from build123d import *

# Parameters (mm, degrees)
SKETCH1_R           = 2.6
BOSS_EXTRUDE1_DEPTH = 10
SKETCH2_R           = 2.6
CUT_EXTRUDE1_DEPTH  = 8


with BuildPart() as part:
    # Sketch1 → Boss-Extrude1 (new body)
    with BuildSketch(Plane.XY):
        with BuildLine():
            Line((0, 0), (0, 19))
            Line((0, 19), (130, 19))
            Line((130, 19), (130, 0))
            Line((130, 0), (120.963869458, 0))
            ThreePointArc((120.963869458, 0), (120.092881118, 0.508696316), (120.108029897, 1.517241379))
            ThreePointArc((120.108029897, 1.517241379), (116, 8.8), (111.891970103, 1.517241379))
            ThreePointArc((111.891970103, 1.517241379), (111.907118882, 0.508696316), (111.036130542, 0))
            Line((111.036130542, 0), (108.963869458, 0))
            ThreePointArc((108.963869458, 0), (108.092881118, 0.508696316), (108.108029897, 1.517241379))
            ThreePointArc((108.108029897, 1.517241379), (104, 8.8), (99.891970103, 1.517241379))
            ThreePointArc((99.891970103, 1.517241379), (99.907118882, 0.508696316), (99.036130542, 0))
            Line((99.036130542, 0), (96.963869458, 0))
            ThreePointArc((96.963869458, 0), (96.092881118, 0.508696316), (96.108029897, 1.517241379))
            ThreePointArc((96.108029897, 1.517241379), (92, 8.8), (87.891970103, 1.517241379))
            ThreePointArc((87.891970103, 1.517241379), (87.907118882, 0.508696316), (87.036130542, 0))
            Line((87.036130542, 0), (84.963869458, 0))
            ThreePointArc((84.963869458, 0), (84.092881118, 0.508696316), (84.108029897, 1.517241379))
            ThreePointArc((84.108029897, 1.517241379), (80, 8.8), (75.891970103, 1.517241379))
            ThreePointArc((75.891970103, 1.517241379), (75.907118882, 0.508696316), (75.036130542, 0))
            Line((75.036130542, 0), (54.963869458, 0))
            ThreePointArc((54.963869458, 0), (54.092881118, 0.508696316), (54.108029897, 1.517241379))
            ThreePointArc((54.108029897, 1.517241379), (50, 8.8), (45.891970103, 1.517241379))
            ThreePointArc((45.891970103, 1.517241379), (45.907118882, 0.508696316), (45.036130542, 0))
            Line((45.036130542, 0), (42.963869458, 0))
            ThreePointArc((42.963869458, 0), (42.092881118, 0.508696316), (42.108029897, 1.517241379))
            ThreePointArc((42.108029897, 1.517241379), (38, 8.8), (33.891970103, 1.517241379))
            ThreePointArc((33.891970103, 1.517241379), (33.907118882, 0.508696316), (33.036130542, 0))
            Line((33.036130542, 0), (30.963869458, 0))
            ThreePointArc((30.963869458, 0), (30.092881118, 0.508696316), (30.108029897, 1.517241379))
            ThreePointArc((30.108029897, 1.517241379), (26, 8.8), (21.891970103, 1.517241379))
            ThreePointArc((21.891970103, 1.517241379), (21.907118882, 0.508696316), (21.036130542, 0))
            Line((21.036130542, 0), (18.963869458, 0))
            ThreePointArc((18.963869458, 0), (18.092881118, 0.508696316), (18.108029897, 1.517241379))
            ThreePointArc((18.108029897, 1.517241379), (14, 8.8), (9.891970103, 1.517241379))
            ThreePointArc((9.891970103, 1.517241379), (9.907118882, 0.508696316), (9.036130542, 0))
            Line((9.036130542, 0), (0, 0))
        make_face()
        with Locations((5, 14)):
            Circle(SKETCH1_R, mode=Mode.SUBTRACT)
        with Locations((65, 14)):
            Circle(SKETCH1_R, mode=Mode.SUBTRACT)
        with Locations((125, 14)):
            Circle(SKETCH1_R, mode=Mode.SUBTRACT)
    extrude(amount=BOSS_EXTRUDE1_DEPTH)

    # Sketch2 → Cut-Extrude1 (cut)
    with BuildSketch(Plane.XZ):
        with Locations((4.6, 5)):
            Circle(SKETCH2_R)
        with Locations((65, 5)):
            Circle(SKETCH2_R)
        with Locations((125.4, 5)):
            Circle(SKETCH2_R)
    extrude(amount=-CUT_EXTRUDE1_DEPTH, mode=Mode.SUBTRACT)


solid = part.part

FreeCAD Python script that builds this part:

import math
import FreeCAD as App
import Part
import Sketcher

V = App.Vector

doc = App.newDocument("Part")
body = doc.addObject("PartDesign::Body", "Body")

# Sketch on XY plane
sketch1 = body.newObject("Sketcher::SketchObject", "Sketch")
sketch1.AttachmentSupport = (doc.getObject("XY_Plane"), [""])
sketch1.MapMode = "FlatFace"
sketch1.addGeometry(Part.LineSegment(V(0, 19, 0), V(0, 0, 0)), False)
sketch1.addGeometry(Part.LineSegment(V(0, 0, 0), V(9, 0, 0)), False)
sketch1.addGeometry(Part.ArcOfCircle(Part.Circle(V(9, 1, 0), V(0, 0, 1), 1), math.radians(-90), math.radians(31)), False)
sketch1.addGeometry(Part.ArcOfCircle(Part.Circle(V(14, 4, 0), V(0, 0, 1), 4.8), math.radians(-31), math.radians(211)), False)
sketch1.addGeometry(Part.ArcOfCircle(Part.Circle(V(19, 1, 0), V(0, 0, 1), 1), math.radians(149), math.radians(270)), False)
sketch1.addGeometry(Part.LineSegment(V(19, 0, 0), V(21, 0, 0)), False)
sketch1.addGeometry(Part.ArcOfCircle(Part.Circle(V(21, 1, 0), V(0, 0, 1), 1), math.radians(-90), math.radians(31)), False)
sketch1.addGeometry(Part.ArcOfCircle(Part.Circle(V(26, 4, 0), V(0, 0, 1), 4.8), math.radians(-31), math.radians(211)), False)
sketch1.addGeometry(Part.ArcOfCircle(Part.Circle(V(31, 1, 0), V(0, 0, 1), 1), math.radians(149), math.radians(270)), False)
sketch1.addGeometry(Part.LineSegment(V(31, 0, 0), V(33, 0, 0)), False)
sketch1.addGeometry(Part.ArcOfCircle(Part.Circle(V(33, 1, 0), V(0, 0, 1), 1), math.radians(-90), math.radians(31)), False)
sketch1.addGeometry(Part.ArcOfCircle(Part.Circle(V(38, 4, 0), V(0, 0, 1), 4.8), math.radians(-31), math.radians(211)), False)
sketch1.addGeometry(Part.ArcOfCircle(Part.Circle(V(43, 1, 0), V(0, 0, 1), 1), math.radians(149), math.radians(270)), False)
sketch1.addGeometry(Part.LineSegment(V(43, 0, 0), V(45, 0, 0)), False)
sketch1.addGeometry(Part.ArcOfCircle(Part.Circle(V(45, 1, 0), V(0, 0, 1), 1), math.radians(-90), math.radians(31)), False)
sketch1.addGeometry(Part.ArcOfCircle(Part.Circle(V(50, 4, 0), V(0, 0, 1), 4.8), math.radians(-31), math.radians(211)), False)
sketch1.addGeometry(Part.ArcOfCircle(Part.Circle(V(55, 1, 0), V(0, 0, 1), 1), math.radians(149), math.radians(270)), False)
sketch1.addGeometry(Part.LineSegment(V(55, 0, 0), V(75, 0, 0)), False)
sketch1.addGeometry(Part.ArcOfCircle(Part.Circle(V(75, 1, 0), V(0, 0, 1), 1), math.radians(-90), math.radians(31)), False)
sketch1.addGeometry(Part.ArcOfCircle(Part.Circle(V(80, 4, 0), V(0, 0, 1), 4.8), math.radians(-31), math.radians(211)), False)
sketch1.addGeometry(Part.ArcOfCircle(Part.Circle(V(85, 1, 0), V(0, 0, 1), 1), math.radians(149), math.radians(270)), False)
sketch1.addGeometry(Part.LineSegment(V(85, 0, 0), V(87, 0, 0)), False)
sketch1.addGeometry(Part.ArcOfCircle(Part.Circle(V(87, 1, 0), V(0, 0, 1), 1), math.radians(-90), math.radians(31)), False)
sketch1.addGeometry(Part.ArcOfCircle(Part.Circle(V(92, 4, 0), V(0, 0, 1), 4.8), math.radians(-31), math.radians(211)), False)
sketch1.addGeometry(Part.ArcOfCircle(Part.Circle(V(97, 1, 0), V(0, 0, 1), 1), math.radians(149), math.radians(270)), False)
sketch1.addGeometry(Part.LineSegment(V(97, 0, 0), V(99, 0, 0)), False)
sketch1.addGeometry(Part.ArcOfCircle(Part.Circle(V(99, 1, 0), V(0, 0, 1), 1), math.radians(-90), math.radians(31)), False)
sketch1.addGeometry(Part.ArcOfCircle(Part.Circle(V(104, 4, 0), V(0, 0, 1), 4.8), math.radians(-31), math.radians(211)), False)
sketch1.addGeometry(Part.ArcOfCircle(Part.Circle(V(109, 1, 0), V(0, 0, 1), 1), math.radians(149), math.radians(270)), False)
sketch1.addGeometry(Part.LineSegment(V(109, 0, 0), V(111, 0, 0)), False)
sketch1.addGeometry(Part.ArcOfCircle(Part.Circle(V(111, 1, 0), V(0, 0, 1), 1), math.radians(-90), math.radians(31)), False)
sketch1.addGeometry(Part.ArcOfCircle(Part.Circle(V(116, 4, 0), V(0, 0, 1), 4.8), math.radians(-31), math.radians(211)), False)
sketch1.addGeometry(Part.ArcOfCircle(Part.Circle(V(121, 1, 0), V(0, 0, 1), 1), math.radians(149), math.radians(270)), False)
sketch1.addGeometry(Part.LineSegment(V(121, 0, 0), V(130, 0, 0)), False)
sketch1.addGeometry(Part.LineSegment(V(130, 0, 0), V(130, 19, 0)), False)
sketch1.addGeometry(Part.LineSegment(V(130, 19, 0), V(0, 19, 0)), False)
sketch1.addGeometry(Part.Circle(V(125, 14, 0), V(0, 0, 1), 2.6), False)
sketch1.addGeometry(Part.Circle(V(65, 14, 0), V(0, 0, 1), 2.6), False)
sketch1.addGeometry(Part.Circle(V(5, 14, 0), V(0, 0, 1), 2.6), False)
sketch1.addConstraint(Sketcher.Constraint("Coincident", 0, 2, 1, 1))
sketch1.addConstraint(Sketcher.Constraint("Tangent", 1, 2, 2, 1))
sketch1.addConstraint(Sketcher.Constraint("Tangent", 2, 2, 3, 2))
sketch1.addConstraint(Sketcher.Constraint("Tangent", 3, 1, 4, 1))
sketch1.addConstraint(Sketcher.Constraint("Tangent", 4, 2, 5, 1))
sketch1.addConstraint(Sketcher.Constraint("Tangent", 5, 2, 6, 1))
sketch1.addConstraint(Sketcher.Constraint("Tangent", 6, 2, 7, 2))
sketch1.addConstraint(Sketcher.Constraint("Tangent", 7, 1, 8, 1))
sketch1.addConstraint(Sketcher.Constraint("Tangent", 8, 2, 9, 1))
sketch1.addConstraint(Sketcher.Constraint("Tangent", 9, 2, 10, 1))
sketch1.addConstraint(Sketcher.Constraint("Tangent", 10, 2, 11, 2))
sketch1.addConstraint(Sketcher.Constraint("Tangent", 11, 1, 12, 1))
sketch1.addConstraint(Sketcher.Constraint("Tangent", 12, 2, 13, 1))
sketch1.addConstraint(Sketcher.Constraint("Tangent", 13, 2, 14, 1))
sketch1.addConstraint(Sketcher.Constraint("Tangent", 14, 2, 15, 2))
sketch1.addConstraint(Sketcher.Constraint("Tangent", 15, 1, 16, 1))
sketch1.addConstraint(Sketcher.Constraint("Tangent", 16, 2, 17, 1))
sketch1.addConstraint(Sketcher.Constraint("Tangent", 17, 2, 18, 1))
sketch1.addConstraint(Sketcher.Constraint("Tangent", 18, 2, 19, 2))
sketch1.addConstraint(Sketcher.Constraint("Tangent", 19, 1, 20, 1))
sketch1.addConstraint(Sketcher.Constraint("Tangent", 20, 2, 21, 1))
sketch1.addConstraint(Sketcher.Constraint("Tangent", 21, 2, 22, 1))
sketch1.addConstraint(Sketcher.Constraint("Tangent", 22, 2, 23, 2))
sketch1.addConstraint(Sketcher.Constraint("Tangent", 23, 1, 24, 1))
sketch1.addConstraint(Sketcher.Constraint("Tangent", 24, 2, 25, 1))
sketch1.addConstraint(Sketcher.Constraint("Tangent", 25, 2, 26, 1))
sketch1.addConstraint(Sketcher.Constraint("Tangent", 26, 2, 27, 2))
sketch1.addConstraint(Sketcher.Constraint("Tangent", 27, 1, 28, 1))
sketch1.addConstraint(Sketcher.Constraint("Tangent", 28, 2, 29, 1))
sketch1.addConstraint(Sketcher.Constraint("Tangent", 29, 2, 30, 1))
sketch1.addConstraint(Sketcher.Constraint("Tangent", 30, 2, 31, 2))
sketch1.addConstraint(Sketcher.Constraint("Tangent", 31, 1, 32, 1))
sketch1.addConstraint(Sketcher.Constraint("Tangent", 32, 2, 33, 1))
sketch1.addConstraint(Sketcher.Constraint("Coincident", 33, 2, 34, 1))
sketch1.addConstraint(Sketcher.Constraint("Coincident", 34, 2, 35, 1))
sketch1.addConstraint(Sketcher.Constraint("Coincident", 35, 2, 0, 1))
sketch1.addConstraint(Sketcher.Constraint("Vertical", 0))
sketch1.addConstraint(Sketcher.Constraint("Horizontal", 1))
sketch1.addConstraint(Sketcher.Constraint("Horizontal", 5))
sketch1.addConstraint(Sketcher.Constraint("Horizontal", 9))
sketch1.addConstraint(Sketcher.Constraint("Horizontal", 13))
sketch1.addConstraint(Sketcher.Constraint("Horizontal", 17))
sketch1.addConstraint(Sketcher.Constraint("Horizontal", 21))
sketch1.addConstraint(Sketcher.Constraint("Horizontal", 25))
sketch1.addConstraint(Sketcher.Constraint("Horizontal", 29))
sketch1.addConstraint(Sketcher.Constraint("Horizontal", 33))
sketch1.addConstraint(Sketcher.Constraint("Vertical", 34))
sketch1.addConstraint(Sketcher.Constraint("Horizontal", 35))
sketch1.addConstraint(Sketcher.Constraint("Coincident", 0, 2, -1, 1))
sketch1.addConstraint(Sketcher.Constraint("Equal", 2, 4))
sketch1.addConstraint(Sketcher.Constraint("Equal", 4, 6))
sketch1.addConstraint(Sketcher.Constraint("Equal", 3, 7))
sketch1.addConstraint(Sketcher.Constraint("Equal", 6, 8))
sketch1.addConstraint(Sketcher.Constraint("Equal", 8, 10))
sketch1.addConstraint(Sketcher.Constraint("Equal", 7, 11))
sketch1.addConstraint(Sketcher.Constraint("Equal", 10, 12))
sketch1.addConstraint(Sketcher.Constraint("Equal", 12, 14))
sketch1.addConstraint(Sketcher.Constraint("Equal", 11, 15))
sketch1.addConstraint(Sketcher.Constraint("Equal", 14, 16))
sketch1.addConstraint(Sketcher.Constraint("Equal", 16, 18))
sketch1.addConstraint(Sketcher.Constraint("Equal", 15, 19))
sketch1.addConstraint(Sketcher.Constraint("Equal", 18, 20))
sketch1.addConstraint(Sketcher.Constraint("Equal", 20, 22))
sketch1.addConstraint(Sketcher.Constraint("Equal", 19, 23))
sketch1.addConstraint(Sketcher.Constraint("Equal", 22, 24))
sketch1.addConstraint(Sketcher.Constraint("Equal", 24, 26))
sketch1.addConstraint(Sketcher.Constraint("Equal", 23, 27))
sketch1.addConstraint(Sketcher.Constraint("Equal", 26, 28))
sketch1.addConstraint(Sketcher.Constraint("Equal", 28, 30))
sketch1.addConstraint(Sketcher.Constraint("Equal", 27, 31))
sketch1.addConstraint(Sketcher.Constraint("Equal", 30, 32))
sketch1.addConstraint(Sketcher.Constraint("Equal", 36, 37))
sketch1.addConstraint(Sketcher.Constraint("Equal", 37, 38))
sketch1.addConstraint(Sketcher.Constraint("PointOnObject", 4, 2, -1))
sketch1.addConstraint(Sketcher.Constraint("PointOnObject", 8, 2, -1))
sketch1.addConstraint(Sketcher.Constraint("PointOnObject", 12, 2, -1))
sketch1.addConstraint(Sketcher.Constraint("PointOnObject", 16, 2, -1))
sketch1.addConstraint(Sketcher.Constraint("PointOnObject", 20, 2, -1))
sketch1.addConstraint(Sketcher.Constraint("PointOnObject", 24, 2, -1))
sketch1.addConstraint(Sketcher.Constraint("PointOnObject", 28, 2, -1))
sketch1.addConstraint(Sketcher.Constraint("PointOnObject", 32, 2, -1))
sketch1.addConstraint(Sketcher.Constraint("Horizontal", 3, 3, 7, 3))
sketch1.addConstraint(Sketcher.Constraint("Horizontal", 7, 3, 11, 3))
sketch1.addConstraint(Sketcher.Constraint("Horizontal", 11, 3, 15, 3))
sketch1.addConstraint(Sketcher.Constraint("Horizontal", 15, 3, 19, 3))
sketch1.addConstraint(Sketcher.Constraint("Horizontal", 19, 3, 23, 3))
sketch1.addConstraint(Sketcher.Constraint("Horizontal", 23, 3, 27, 3))
sketch1.addConstraint(Sketcher.Constraint("Horizontal", 27, 3, 31, 3))
sketch1.addConstraint(Sketcher.Constraint("Horizontal", 36, 3, 37, 3))
sketch1.addConstraint(Sketcher.Constraint("Horizontal", 37, 3, 38, 3))
sketch1.addConstraint(Sketcher.Constraint("Equal", 5, 9))
sketch1.addConstraint(Sketcher.Constraint("Equal", 9, 13))
sketch1.addConstraint(Sketcher.Constraint("Equal", 13, 21))
sketch1.addConstraint(Sketcher.Constraint("Equal", 21, 25))
sketch1.addConstraint(Sketcher.Constraint("Equal", 25, 29))
sketch1.addConstraint(Sketcher.Constraint("Equal", 1, 33))
sketch1.addConstraint(Sketcher.Constraint("Radius", 2, 1.0))
sketch1.addConstraint(Sketcher.Constraint("Diameter", 36, 5.2))
sketch1.addConstraint(Sketcher.Constraint("Radius", 3, 4.8))
sketch1.addConstraint(Sketcher.Constraint("DistanceX", 35, 2, 35, 1, 130.0))
sketch1.addConstraint(Sketcher.Constraint("DistanceY", 0, 2, 0, 1, 19.0))
sketch1.addConstraint(Sketcher.Constraint("DistanceX", -1, 1, 3, 3, 14.0))
sketch1.addConstraint(Sketcher.Constraint("DistanceY", -1, 1, 3, 3, 4.0))
sketch1.addConstraint(Sketcher.Constraint("DistanceX", -1, 1, 7, 3, 26.0))
sketch1.addConstraint(Sketcher.Constraint("DistanceX", -1, 1, 36, 3, 125.0))
sketch1.addConstraint(Sketcher.Constraint("DistanceY", -1, 1, 36, 3, 14.0))
sketch1.addConstraint(Sketcher.Constraint("DistanceX", -1, 1, 37, 3, 65.0))
sketch1.addConstraint(Sketcher.Constraint("DistanceX", -1, 1, 38, 3, 5.0))
pad1 = body.newObject("PartDesign::Pad", "Pad")
pad1.Profile = sketch1
pad1.Length = 10

# Sketch on XZ plane
sketch2 = body.newObject("Sketcher::SketchObject", "Sketch001")
sketch2.AttachmentSupport = (doc.getObject("XZ_Plane"), [""])
sketch2.MapMode = "FlatFace"
sketch2.addGeometry(Part.Circle(V(4.6, 5, 0), V(0, 0, 1), 2.6), False)
sketch2.addGeometry(Part.Circle(V(65, 5, 0), V(0, 0, 1), 2.6), False)
sketch2.addGeometry(Part.Circle(V(125.4, 5, 0), V(0, 0, 1), 2.6), False)
sketch2.addConstraint(Sketcher.Constraint("Equal", 0, 1))
sketch2.addConstraint(Sketcher.Constraint("Equal", 1, 2))
sketch2.addConstraint(Sketcher.Constraint("Horizontal", 0, 3, 1, 3))
sketch2.addConstraint(Sketcher.Constraint("Horizontal", 1, 3, 2, 3))
sketch2.addConstraint(Sketcher.Constraint("Diameter", 0, 5.2))
sketch2.addConstraint(Sketcher.Constraint("DistanceY", -1, 1, 0, 3, 5.0))
sketch2.addConstraint(Sketcher.Constraint("DistanceX", -1, 1, 1, 3, 65.0))
sketch2.addConstraint(Sketcher.Constraint("DistanceX", -1, 1, 0, 3, 4.6))
sketch2.addConstraint(Sketcher.Constraint("DistanceX", -1, 1, 2, 3, 125.4))
pocket1 = body.newObject("PartDesign::Pocket", "Pocket")
pocket1.Profile = sketch2
pocket1.Length = 8

doc.recompute()
